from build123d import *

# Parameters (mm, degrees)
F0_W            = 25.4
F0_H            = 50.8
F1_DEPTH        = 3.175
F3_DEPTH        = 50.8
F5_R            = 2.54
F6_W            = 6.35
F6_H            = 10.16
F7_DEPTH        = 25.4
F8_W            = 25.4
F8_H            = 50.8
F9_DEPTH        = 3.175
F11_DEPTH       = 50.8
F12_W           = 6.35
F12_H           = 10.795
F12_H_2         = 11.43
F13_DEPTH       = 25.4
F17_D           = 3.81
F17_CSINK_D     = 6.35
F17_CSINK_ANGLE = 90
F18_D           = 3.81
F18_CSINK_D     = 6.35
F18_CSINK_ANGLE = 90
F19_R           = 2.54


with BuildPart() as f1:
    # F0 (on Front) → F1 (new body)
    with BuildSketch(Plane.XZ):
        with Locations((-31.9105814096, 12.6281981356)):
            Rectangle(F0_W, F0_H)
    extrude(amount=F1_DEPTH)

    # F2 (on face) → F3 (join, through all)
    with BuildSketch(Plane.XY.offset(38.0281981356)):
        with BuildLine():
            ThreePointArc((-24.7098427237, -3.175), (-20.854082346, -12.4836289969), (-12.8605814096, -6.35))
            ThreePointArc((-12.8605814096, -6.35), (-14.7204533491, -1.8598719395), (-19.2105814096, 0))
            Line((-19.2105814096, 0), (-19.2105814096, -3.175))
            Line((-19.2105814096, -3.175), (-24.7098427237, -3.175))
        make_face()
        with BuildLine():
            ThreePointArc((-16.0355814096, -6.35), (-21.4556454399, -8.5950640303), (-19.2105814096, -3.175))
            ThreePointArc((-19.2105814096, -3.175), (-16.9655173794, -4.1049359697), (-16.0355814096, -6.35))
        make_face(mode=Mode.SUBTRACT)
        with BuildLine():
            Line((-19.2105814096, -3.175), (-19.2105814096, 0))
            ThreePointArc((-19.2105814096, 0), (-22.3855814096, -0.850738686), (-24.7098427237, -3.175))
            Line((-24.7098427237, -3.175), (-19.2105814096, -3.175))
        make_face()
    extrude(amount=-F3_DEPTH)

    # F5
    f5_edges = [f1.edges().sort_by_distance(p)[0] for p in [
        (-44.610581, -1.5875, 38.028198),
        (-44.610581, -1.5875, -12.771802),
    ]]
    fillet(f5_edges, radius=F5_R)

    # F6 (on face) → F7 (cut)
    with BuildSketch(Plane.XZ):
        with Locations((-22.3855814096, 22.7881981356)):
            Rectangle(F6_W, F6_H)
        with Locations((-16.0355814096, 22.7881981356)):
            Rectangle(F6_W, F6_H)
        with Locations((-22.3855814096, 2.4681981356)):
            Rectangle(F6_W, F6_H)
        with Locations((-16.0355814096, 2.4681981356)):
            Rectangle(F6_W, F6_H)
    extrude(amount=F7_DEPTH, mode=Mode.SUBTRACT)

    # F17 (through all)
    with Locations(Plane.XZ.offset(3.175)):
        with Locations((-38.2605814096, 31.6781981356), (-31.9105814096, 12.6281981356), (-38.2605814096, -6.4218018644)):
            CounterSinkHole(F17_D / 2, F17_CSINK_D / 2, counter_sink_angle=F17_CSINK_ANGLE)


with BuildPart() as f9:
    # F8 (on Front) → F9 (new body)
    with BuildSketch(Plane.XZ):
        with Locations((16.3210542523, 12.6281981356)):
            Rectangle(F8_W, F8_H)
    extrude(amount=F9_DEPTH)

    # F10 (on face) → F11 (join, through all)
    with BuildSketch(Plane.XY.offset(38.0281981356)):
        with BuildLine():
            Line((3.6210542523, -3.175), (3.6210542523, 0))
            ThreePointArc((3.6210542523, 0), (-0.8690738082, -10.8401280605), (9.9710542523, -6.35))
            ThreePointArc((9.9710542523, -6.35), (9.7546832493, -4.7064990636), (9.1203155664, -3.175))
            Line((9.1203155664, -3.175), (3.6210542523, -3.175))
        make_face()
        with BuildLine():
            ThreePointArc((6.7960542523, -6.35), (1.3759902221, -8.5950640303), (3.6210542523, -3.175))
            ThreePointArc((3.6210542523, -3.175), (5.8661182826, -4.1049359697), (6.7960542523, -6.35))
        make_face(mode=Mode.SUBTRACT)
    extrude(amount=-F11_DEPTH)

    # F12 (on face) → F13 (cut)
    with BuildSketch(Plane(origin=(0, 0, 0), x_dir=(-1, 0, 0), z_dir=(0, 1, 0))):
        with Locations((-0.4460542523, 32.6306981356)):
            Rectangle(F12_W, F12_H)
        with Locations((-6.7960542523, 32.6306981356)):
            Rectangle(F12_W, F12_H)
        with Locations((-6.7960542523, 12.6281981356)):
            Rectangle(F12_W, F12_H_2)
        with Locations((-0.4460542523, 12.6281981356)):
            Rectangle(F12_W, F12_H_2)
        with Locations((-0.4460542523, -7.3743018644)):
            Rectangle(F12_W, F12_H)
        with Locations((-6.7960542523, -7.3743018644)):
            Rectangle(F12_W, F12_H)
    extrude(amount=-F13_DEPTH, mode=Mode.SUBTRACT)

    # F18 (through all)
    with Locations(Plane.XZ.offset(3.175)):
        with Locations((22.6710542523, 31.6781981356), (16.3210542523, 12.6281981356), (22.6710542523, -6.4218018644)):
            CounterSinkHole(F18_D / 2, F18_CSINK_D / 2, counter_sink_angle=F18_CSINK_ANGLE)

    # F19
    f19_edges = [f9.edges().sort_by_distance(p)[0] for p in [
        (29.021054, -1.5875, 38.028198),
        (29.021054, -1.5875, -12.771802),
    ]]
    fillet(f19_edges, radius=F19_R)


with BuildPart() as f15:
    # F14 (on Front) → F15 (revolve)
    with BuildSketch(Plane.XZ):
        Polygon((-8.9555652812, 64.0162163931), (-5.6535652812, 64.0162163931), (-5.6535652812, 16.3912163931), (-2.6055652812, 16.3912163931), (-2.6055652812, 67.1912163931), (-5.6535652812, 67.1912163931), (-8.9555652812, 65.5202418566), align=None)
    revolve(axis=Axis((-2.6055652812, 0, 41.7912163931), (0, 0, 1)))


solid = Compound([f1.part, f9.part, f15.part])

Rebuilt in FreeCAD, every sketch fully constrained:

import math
import FreeCAD as App
import Part
import Sketcher

V = App.Vector
Q = App.Units.Quantity


def edges_at(feature, points):
    """Names of the edges that pass closest to the given points."""
    edges = feature.Shape.Edges
    near = lambda p: min(range(len(edges)), key=lambda i: edges[i].distToShape(Part.Vertex(*p))[0])
    return sorted({f"Edge{near(p) + 1}" for p in points})

doc = App.newDocument("Part")
body = doc.addObject("PartDesign::Body", "Body")

# Sketch on XZ plane
sketch1 = body.newObject("Sketcher::SketchObject", "Sketch")
sketch1.AttachmentSupport = (doc.getObject("XZ_Plane"), [""])
sketch1.MapMode = "FlatFace"
sketch1.addGeometry([
    Part.LineSegment(V(-44.610581, 38.028198, 0), V(-44.610581, -12.771802, 0)),
    Part.LineSegment(V(-44.610581, -12.771802, 0), V(-19.210581, -12.771802, 0)),
    Part.LineSegment(V(-19.210581, -12.771802, 0), V(-19.210581, 38.028198, 0)),
    Part.LineSegment(V(-19.210581, 38.028198, 0), V(-44.610581, 38.028198, 0)),
], False)
sketch1.addConstraint([
    Sketcher.Constraint("Coincident", 0, 2, 1, 1),
    Sketcher.Constraint("Coincident", 1, 2, 2, 1),
    Sketcher.Constraint("Coincident", 2, 2, 3, 1),
    Sketcher.Constraint("Coincident", 3, 2, 0, 1),
    Sketcher.Constraint("Vertical", 0),
    Sketcher.Constraint("Horizontal", 1),
    Sketcher.Constraint("Vertical", 2),
    Sketcher.Constraint("Horizontal", 3),
    Sketcher.Constraint("DistanceX", 1, 1, 1, 2, Q("1 in")),
    Sketcher.Constraint("DistanceY", 0, 2, 0, 1, Q("2 in")),
    Sketcher.Constraint("DistanceY", 0, 2, -1, 1, 12.771802),
    Sketcher.Constraint("DistanceX", 0, 2, -1, 1, 44.610581),
])
pad1 = body.newObject("PartDesign::Pad", "Pad")
pad1.Profile = sketch1
pad1.Length = Q("0.125 in")

# Sketch on XY plane
sketch2 = body.newObject("Sketcher::SketchObject", "Sketch001")
sketch2.AttachmentSupport = (doc.getObject("XY_Plane"), [""])
sketch2.MapMode = "FlatFace"
sketch2.AttachmentOffset = App.Placement(V(0, 0, 38.028198), App.Rotation())
sketch2.addGeometry([
    Part.ArcOfCircle(Part.Circle(V(-19.210581, -6.35, 0), V(0, 0, 1), 6.35), math.radians(0), math.radians(90)),  # 0
    Part.ArcOfCircle(Part.Circle(V(-19.210581, -6.35, 0), V(0, 0, 1), 6.35), math.radians(90), math.radians(150)),  # 1
    Part.ArcOfCircle(Part.Circle(V(-19.210581, -6.35, 0), V(0, 0, 1), 6.35), math.radians(150), math.radians(360)),  # 2
    Part.ArcOfCircle(Part.Circle(V(-19.210581, -6.35, 0), V(0, 0, 1), 3.175), math.radians(90), math.radians(360)),  # 3
    Part.ArcOfCircle(Part.Circle(V(-19.210581, -6.35, 0), V(0, 0, 1), 3.175), math.radians(0), math.radians(90)),  # 4
], False)
sketch2.addConstraint([
    Sketcher.Constraint("Tangent", 0, 2, 1, 1),
    Sketcher.Constraint("Tangent", 1, 2, 2, 1),
    Sketcher.Constraint("Tangent", 2, 2, 0, 1),
    Sketcher.Constraint("Tangent", 3, 1, 4, 2),
    Sketcher.Constraint("Coincident", 4, 1, 3, 2),
    Sketcher.Constraint("Coincident", 3, 3, 0, 3),
    Sketcher.Constraint("PointOnObject", 0, 2, -1),
    Sketcher.Constraint("Horizontal", 4, 3, 2, 2),
    Sketcher.Constraint("Horizontal", 1, 2, 3, 1),
    Sketcher.Constraint("Horizontal", 2, 2, 4, 1),
    Sketcher.Constraint("Vertical", 4, 3, 0, 2),
    Sketcher.Constraint("Vertical", 0, 2, 3, 1),
    Sketcher.Constraint("Radius", 0, Q("0.25 in")),
    Sketcher.Constraint("Radius", 3, Q("0.125 in")),
    Sketcher.Constraint("DistanceX", 0, 3, -1, 1, 19.210581),
])
pad2 = body.newObject("PartDesign::Pad", "Pad001")
pad2.Profile = sketch2
pad2.Length = Q("2 in")
pad2.Reversed = True
doc.recompute()

fillet = body.newObject("PartDesign::Fillet", "Fillet")
fillet.Base = (pad2, edges_at(pad2, [(-44.611, -1.587, 38.028), (-44.611, -1.587, -12.772)]))
fillet.Radius = Q("0.1 in")

# Sketch on XZ plane
sketch3 = body.newObject("Sketcher::SketchObject", "Sketch002")
sketch3.AttachmentSupport = (doc.getObject("XZ_Plane"), [""])
sketch3.MapMode = "FlatFace"
sketch3.addGeometry([
    Part.LineSegment(V(-25.560581, 27.868198, 0), V(-25.560581, 17.708198, 0)),  # 0
    Part.LineSegment(V(-25.560581, 17.708198, 0), V(-12.860581, 17.708198, 0)),  # 1
    Part.LineSegment(V(-12.860581, 17.708198, 0), V(-12.860581, 27.868198, 0)),  # 2
    Part.LineSegment(V(-12.860581, 27.868198, 0), V(-25.560581, 27.868198, 0)),  # 3
    Part.LineSegment(V(-25.560581, 7.548198, 0), V(-25.560581, -2.611802, 0)),  # 4
    Part.LineSegment(V(-25.560581, -2.611802, 0), V(-12.860581, -2.611802, 0)),  # 5
    Part.LineSegment(V(-12.860581, -2.611802, 0), V(-12.860581, 7.548198, 0)),  # 6
    Part.LineSegment(V(-12.860581, 7.548198, 0), V(-25.560581, 7.548198, 0)),  # 7
], False)
sketch3.addConstraint([
    Sketcher.Constraint("Coincident", 0, 2, 1, 1),
    Sketcher.Constraint("Coincident", 1, 2, 2, 1),
    Sketcher.Constraint("Coincident", 2, 2, 3, 1),
    Sketcher.Constraint("Coincident", 3, 2, 0, 1),
    Sketcher.Constraint("Coincident", 4, 2, 5, 1),
    Sketcher.Constraint("Coincident", 5, 2, 6, 1),
    Sketcher.Constraint("Coincident", 6, 2, 7, 1),
    Sketcher.Constraint("Coincident", 7, 2, 4, 1),
    Sketcher.Constraint("Vertical", 0),
    Sketcher.Constraint("Horizontal", 1),
    Sketcher.Constraint("Vertical", 2),
    Sketcher.Constraint("Horizontal", 3),
    Sketcher.Constraint("Vertical", 4),
    Sketcher.Constraint("Horizontal", 5),
    Sketcher.Constraint("Vertical", 6),
    Sketcher.Constraint("Horizontal", 7),
    Sketcher.Constraint("Vertical", 3, 2, 4, 2),
    Sketcher.Constraint("Vertical", 2, 2, 5, 2),
    Sketcher.Constraint("Equal", 2, 4),
    Sketcher.Constraint("DistanceX", 1, 1, 1, 2, Q("0.5 in")),
    Sketcher.Constraint("DistanceY", 0, 2, 0, 1, Q("0.4 in")),
    Sketcher.Constraint("DistanceY", 4, 2, 0, 2, Q("0.8 in")),
    Sketcher.Constraint("DistanceY", -1, 1, 0, 2, 17.708198),
    Sketcher.Constraint("DistanceX", 0, 2, -1, 1, 25.560581),
])
pocket1 = body.newObject("PartDesign::Pocket", "Pocket")
pocket1.Profile = sketch3
pocket1.Length = Q("1 in")
pocket1.Reversed = True

# Sketch on XZ plane
sketch4 = body.newObject("Sketcher::SketchObject", "Sketch003")
sketch4.AttachmentSupport = (doc.getObject("XZ_Plane"), [""])
sketch4.MapMode = "FlatFace"
sketch4.AttachmentOffset = App.Placement(V(0, 0, 0.125 * 25.4), App.Rotation())
sketch4.addGeometry([
    Part.Circle(V(-38.260581, 31.678198, 0), V(0, 0, 1), 1.905),
    Part.Circle(V(-31.910581, 12.628198, 0), V(0, 0, 1), 1.905),
    Part.Circle(V(-38.260581, -6.421802, 0), V(0, 0, 1), 1.905),
], False)
sketch4.addConstraint([
    Sketcher.Constraint("Equal", 0, 1),
    Sketcher.Constraint("Equal", 1, 2),
    Sketcher.Constraint("Vertical", 0, 3, 2, 3),
    Sketcher.Constraint("Diameter", 0, Q("0.15 in")),
    Sketcher.Constraint("DistanceY", 2, 3, 0, 3, Q("1.5 in")),
    Sketcher.Constraint("DistanceX", 0, 3, 1, 3, Q("0.25 in")),
    Sketcher.Constraint("DistanceY", 1, 3, 0, 3, Q("0.75 in")),
    Sketcher.Constraint("DistanceY", -1, 1, 0, 3, 31.678198),
    Sketcher.Constraint("DistanceX", 0, 3, -1, 1, 38.260581),
])
doc.recompute()
hole = body.newObject("PartDesign::Hole", "Hole")
hole.Profile = sketch4
hole.ThreadType = "None"
hole.Diameter = Q("0.15 in")
hole.DepthType = "ThroughAll"
hole.HoleCutType = "Countersink"
hole.HoleCutDiameter = Q("0.25 in")
hole.HoleCutCountersinkAngle = 90
body2 = doc.addObject("PartDesign::Body", "Body001")

# Sketch on XZ plane
sketch5 = body2.newObject("Sketcher::SketchObject", "Sketch004")
sketch5.AttachmentSupport = (doc.getObject("XZ_Plane001"), [""])
sketch5.MapMode = "FlatFace"
sketch5.addGeometry([
    Part.LineSegment(V(3.621054, 38.028198, 0), V(3.621054, -12.771802, 0)),
    Part.LineSegment(V(3.621054, -12.771802, 0), V(29.021054, -12.771802, 0)),
    Part.LineSegment(V(29.021054, -12.771802, 0), V(29.021054, 38.028198, 0)),
    Part.LineSegment(V(29.021054, 38.028198, 0), V(3.621054, 38.028198, 0)),
], False)
sketch5.addConstraint([
    Sketcher.Constraint("Coincident", 0, 2, 1, 1),
    Sketcher.Constraint("Coincident", 1, 2, 2, 1),
    Sketcher.Constraint("Coincident", 2, 2, 3, 1),
    Sketcher.Constraint("Coincident", 3, 2, 0, 1),
    Sketcher.Constraint("Vertical", 0),
    Sketcher.Constraint("Horizontal", 1),
    Sketcher.Constraint("Vertical", 2),
    Sketcher.Constraint("Horizontal", 3),
    Sketcher.Constraint("DistanceX", 1, 1, 1, 2, Q("1 in")),
    Sketcher.Constraint("DistanceY", 0, 2, 0, 1, Q("2 in")),
    Sketcher.Constraint("DistanceY", 0, 2, -1, 1, 12.771802),
    Sketcher.Constraint("DistanceX", -1, 1, 0, 2, 3.621054),
])
pad3 = body2.newObject("PartDesign::Pad", "Pad002")
pad3.Profile = sketch5
pad3.Length = Q("0.125 in")

# Sketch on XY plane
sketch6 = body2.newObject("Sketcher::SketchObject", "Sketch005")
sketch6.AttachmentSupport = (doc.getObject("XY_Plane001"), [""])
sketch6.MapMode = "FlatFace"
sketch6.AttachmentOffset = App.Placement(V(0, 0, 38.028198), App.Rotation())
sketch6.addGeometry([
    Part.ArcOfCircle(Part.Circle(V(3.621054, -6.35, 0), V(0, 0, 1), 6.35), math.radians(90), math.radians(360)),  # 0
    Part.ArcOfCircle(Part.Circle(V(3.621054, -6.35, 0), V(0, 0, 1), 6.35), math.radians(0), math.radians(30)),  # 1
    Part.LineSegment(V(9.120316, -3.175, 0), V(3.621054, -3.175, 0)),  # 2
    Part.LineSegment(V(3.621054, -3.175, 0), V(3.621054, 0, 0)),  # 3
    Part.ArcOfCircle(Part.Circle(V(3.621054, -6.35, 0), V(0, 0, 1), 3.175), math.radians(90), math.radians(360)),  # 4
    Part.ArcOfCircle(Part.Circle(V(3.621054, -6.35, 0), V(0, 0, 1), 3.175), math.radians(0), math.radians(90)),  # 5
], False)
sketch6.addConstraint([
    Sketcher.Constraint("Tangent", 0, 2, 1, 1),
    Sketcher.Constraint("Coincident", 1, 2, 2, 1),
    Sketcher.Constraint("Coincident", 2, 2, 3, 1),
    Sketcher.Constraint("Coincident", 3, 2, 0, 1),
    Sketcher.Constraint("Tangent", 4, 1, 5, 2),
    Sketcher.Constraint("Coincident", 5, 1, 4, 2),
    Sketcher.Constraint("Horizontal", 2),
    Sketcher.Constraint("Vertical", 3),
    Sketcher.Constraint("Coincident", 4, 3, 0, 3),
    Sketcher.Constraint("Coincident", 4, 1, 2, 2),
    Sketcher.Constraint("Equal", 0, 1),
    Sketcher.Constraint("PointOnObject", 3, 2, -1),
    Sketcher.Constraint("Horizontal", 5, 3, 0, 2),
    Sketcher.Constraint("Horizontal", 0, 2, 5, 1),
    Sketcher.Constraint("Vertical", 5, 3, 2, 2),
    Sketcher.Constraint("Radius", 0, Q("0.25 in")),
    Sketcher.Constraint("Radius", 4, Q("0.125 in")),
    Sketcher.Constraint("DistanceX", -1, 1, 0, 3, 3.621054),
])
pad4 = body2.newObject("PartDesign::Pad", "Pad003")
pad4.Profile = sketch6
pad4.Length = Q("2 in")
pad4.Reversed = True

# Sketch on XZ plane
sketch7 = body2.newObject("Sketcher::SketchObject", "Sketch006")
sketch7.AttachmentSupport = (doc.getObject("XZ_Plane001"), [""])
sketch7.MapMode = "FlatFace"
sketch7.addGeometry([
    Part.LineSegment(V(-2.728946, 27.233198, 0), V(-2.728946, 38.028198, 0)),  # 0
    Part.LineSegment(V(-2.728946, 38.028198, 0), V(9.971054, 38.028198, 0)),  # 1
    Part.LineSegment(V(9.971054, 38.028198, 0), V(9.971054, 27.233198, 0)),  # 2
    Part.LineSegment(V(9.971054, 27.233198, 0), V(-2.728946, 27.233198, 0)),  # 3
    Part.LineSegment(V(9.971054, 18.343198, 0), V(9.971054, 6.913198, 0)),  # 4
    Part.LineSegment(V(9.971054, 6.913198, 0), V(-2.728946, 6.913198, 0)),  # 5
    Part.LineSegment(V(-2.728946, 6.913198, 0), V(-2.728946, 18.343198, 0)),  # 6
    Part.LineSegment(V(-2.728946, 18.343198, 0), V(9.971054, 18.343198, 0)),  # 7
    Part.LineSegment(V(-2.728946, -12.771802, 0), V(-2.728946, -1.976802, 0)),  # 8
    Part.LineSegment(V(-2.728946, -1.976802, 0), V(9.971054, -1.976802, 0)),  # 9
    Part.LineSegment(V(9.971054, -1.976802, 0), V(9.971054, -12.771802, 0)),  # 10
    Part.LineSegment(V(9.971054, -12.771802, 0), V(-2.728946, -12.771802, 0)),  # 11
], False)
sketch7.addConstraint([
    Sketcher.Constraint("Coincident", 0, 2, 1, 1),
    Sketcher.Constraint("Coincident", 1, 2, 2, 1),
    Sketcher.Constraint("Coincident", 2, 2, 3, 1),
    Sketcher.Constraint("Coincident", 3, 2, 0, 1),
    Sketcher.Constraint("Coincident", 4, 2, 5, 1),
    Sketcher.Constraint("Coincident", 5, 2, 6, 1),
    Sketcher.Constraint("Coincident", 6, 2, 7, 1),
    Sketcher.Constraint("Coincident", 7, 2, 4, 1),
    Sketcher.Constraint("Coincident", 8, 2, 9, 1),
    Sketcher.Constraint("Coincident", 9, 2, 10, 1),
    Sketcher.Constraint("Coincident", 10, 2, 11, 1),
    Sketcher.Constraint("Coincident", 11, 2, 8, 1),
    Sketcher.Constraint("Vertical", 0),
    Sketcher.Constraint("Horizontal", 1),
    Sketcher.Constraint("Vertical", 2),
    Sketcher.Constraint("Horizontal", 3),
    Sketcher.Constraint("Vertical", 4),
    Sketcher.Constraint("Horizontal", 5),
    Sketcher.Constraint("Vertical", 6),
    Sketcher.Constraint("Horizontal", 7),
    Sketcher.Constraint("Vertical", 8),
    Sketcher.Constraint("Horizontal", 9),
    Sketcher.Constraint("Vertical", 10),
    Sketcher.Constraint("Horizontal", 11),
    Sketcher.Constraint("Vertical", 2, 2, 4, 2),
    Sketcher.Constraint("Vertical", 3, 2, 5, 2),
    Sketcher.Constraint("Vertical", 6, 2, 8, 2),
    Sketcher.Constraint("Vertical", 7, 2, 9, 2),
    Sketcher.Constraint("Equal", 2, 8),
    Sketcher.Constraint("DistanceX", 1, 1, 1, 2, Q("0.5 in")),
    Sketcher.Constraint("DistanceY", 4, 2, 4, 1, Q("0.45 in")),
    Sketcher.Constraint("DistanceY", 4, 2, 2, 2, Q("0.8 in")),
    Sketcher.Constraint("DistanceY", 8, 2, 6, 2, Q("0.8 in")),
    Sketcher.Constraint("DistanceY", 0, 1, 0, 2, Q("0.425 in")),
    Sketcher.Constraint("DistanceY", -1, 1, 0, 2, 38.028198),
    Sketcher.Constraint("DistanceX", 0, 2, -1, 1, 2.728946),
])
pocket2 = body2.newObject("PartDesign::Pocket", "Pocket001")
pocket2.Profile = sketch7
pocket2.Length = Q("1 in")
pocket2.Reversed = True

# Sketch on XZ plane
sketch8 = body2.newObject("Sketcher::SketchObject", "Sketch007")
sketch8.AttachmentSupport = (doc.getObject("XZ_Plane001"), [""])
sketch8.MapMode = "FlatFace"
sketch8.AttachmentOffset = App.Placement(V(0, 0, 0.125 * 25.4), App.Rotation())
sketch8.addGeometry([
    Part.Circle(V(22.671054, 31.678198, 0), V(0, 0, 1), 1.905),
    Part.Circle(V(16.321054, 12.628198, 0), V(0, 0, 1), 1.905),
    Part.Circle(V(22.671054, -6.421802, 0), V(0, 0, 1), 1.905),
], False)
sketch8.addConstraint([
    Sketcher.Constraint("Equal", 0, 1),
    Sketcher.Constraint("Equal", 1, 2),
    Sketcher.Constraint("Vertical", 0, 3, 2, 3),
    Sketcher.Constraint("Diameter", 0, Q("0.15 in")),
    Sketcher.Constraint("DistanceY", 2, 3, 0, 3, Q("1.5 in")),
    Sketcher.Constraint("DistanceX", 1, 3, 0, 3, Q("0.25 in")),
    Sketcher.Constraint("DistanceY", 1, 3, 0, 3, Q("0.75 in")),
    Sketcher.Constraint("DistanceY", -1, 1, 0, 3, 31.678198),
    Sketcher.Constraint("DistanceX", -1, 1, 0, 3, 22.671054),
])
doc.recompute()
hole2 = body2.newObject("PartDesign::Hole", "Hole001")
hole2.Profile = sketch8
hole2.ThreadType = "None"
hole2.Diameter = Q("0.15 in")
hole2.DepthType = "ThroughAll"
hole2.HoleCutType = "Countersink"
hole2.HoleCutDiameter = Q("0.25 in")
hole2.HoleCutCountersinkAngle = 90
doc.recompute()

fillet2 = body2.newObject("PartDesign::Fillet", "Fillet001")
fillet2.Base = (hole2, edges_at(hole2, [(29.021, -1.587, 38.028), (29.021, -1.587, -12.772)]))
fillet2.Radius = Q("0.1 in")
body3 = doc.addObject("PartDesign::Body", "Body002")

# Sketch on XZ plane
sketch9 = body3.newObject("Sketcher::SketchObject", "Sketch008")
sketch9.AttachmentSupport = (doc.getObject("XZ_Plane002"), [""])
sketch9.MapMode = "FlatFace"
sketch9.addGeometry([
    Part.LineSegment(V(-8.955565, 64.016216, 0), V(-5.653565, 64.016216, 0)),  # 0
    Part.LineSegment(V(-5.653565, 64.016216, 0), V(-5.653565, 16.391216, 0)),  # 1
    Part.LineSegment(V(-5.653565, 16.391216, 0), V(-2.605565, 16.391216, 0)),  # 2
    Part.LineSegment(V(-2.605565, 16.391216, 0), V(-2.605565, 67.191216, 0)),  # 3
    Part.LineSegment(V(-2.605565, 67.191216, 0), V(-5.653565, 67.191216, 0)),  # 4
    Part.LineSegment(V(-5.653565, 67.191216, 0), V(-8.955565, 65.520242, 0)),  # 5
    Part.LineSegment(V(-8.955565, 65.520242, 0), V(-8.955565, 64.016216, 0)),  # 6
], False)
sketch9.addGeometry(Part.LineSegment(V(-2.605565, 16.391216, 0), V(-2.605565, 67.191216, 0)), True)  # axis
sketch9.addConstraint([
    Sketcher.Constraint("Coincident", 0, 2, 1, 1),
    Sketcher.Constraint("Coincident", 1, 2, 2, 1),
    Sketcher.Constraint("Coincident", 2, 2, 3, 1),
    Sketcher.Constraint("Coincident", 3, 2, 4, 1),
    Sketcher.Constraint("Coincident", 4, 2, 5, 1),
    Sketcher.Constraint("Coincident", 5, 2, 6, 1),
    Sketcher.Constraint("Coincident", 6, 2, 0, 1),
    Sketcher.Constraint("Horizontal", 0),
    Sketcher.Constraint("Vertical", 1),
    Sketcher.Constraint("Horizontal", 2),
    Sketcher.Constraint("Vertical", 3),
    Sketcher.Constraint("Horizontal", 4),
    Sketcher.Constraint("Vertical", 6),
    Sketcher.Constraint("Vertical", 7),
    Sketcher.Constraint("Coincident", 7, 1, 2, 2),
    Sketcher.Constraint("Horizontal", 4, 2, 7, 2),
    Sketcher.Constraint("Vertical", 1, 2, 4, 2),
    Sketcher.Constraint("DistanceY", 3, 1, 3, 2, Q("2 in")),
    Sketcher.Constraint("DistanceX", 0, 1, 0, 2, Q("0.13 in")),
    Sketcher.Constraint("DistanceX", 2, 1, 2, 2, Q("0.12 in")),
    Sketcher.Constraint("DistanceY", 1, 2, 1, 1, Q("1.875 in")),
    Sketcher.Constraint("DistanceY", 6, 2, 6, 1, 1.504025),
    Sketcher.Constraint("DistanceY", -1, 1, 5, 2, 65.520242),
    Sketcher.Constraint("DistanceX", 0, 2, -1, 1, 5.653565),
])
revolution = body3.newObject("PartDesign::Revolution", "Revolution")
revolution.Profile = sketch9
revolution.ReferenceAxis = (sketch9, ["Axis0"])
revolution.Angle = 360

doc.recompute()
